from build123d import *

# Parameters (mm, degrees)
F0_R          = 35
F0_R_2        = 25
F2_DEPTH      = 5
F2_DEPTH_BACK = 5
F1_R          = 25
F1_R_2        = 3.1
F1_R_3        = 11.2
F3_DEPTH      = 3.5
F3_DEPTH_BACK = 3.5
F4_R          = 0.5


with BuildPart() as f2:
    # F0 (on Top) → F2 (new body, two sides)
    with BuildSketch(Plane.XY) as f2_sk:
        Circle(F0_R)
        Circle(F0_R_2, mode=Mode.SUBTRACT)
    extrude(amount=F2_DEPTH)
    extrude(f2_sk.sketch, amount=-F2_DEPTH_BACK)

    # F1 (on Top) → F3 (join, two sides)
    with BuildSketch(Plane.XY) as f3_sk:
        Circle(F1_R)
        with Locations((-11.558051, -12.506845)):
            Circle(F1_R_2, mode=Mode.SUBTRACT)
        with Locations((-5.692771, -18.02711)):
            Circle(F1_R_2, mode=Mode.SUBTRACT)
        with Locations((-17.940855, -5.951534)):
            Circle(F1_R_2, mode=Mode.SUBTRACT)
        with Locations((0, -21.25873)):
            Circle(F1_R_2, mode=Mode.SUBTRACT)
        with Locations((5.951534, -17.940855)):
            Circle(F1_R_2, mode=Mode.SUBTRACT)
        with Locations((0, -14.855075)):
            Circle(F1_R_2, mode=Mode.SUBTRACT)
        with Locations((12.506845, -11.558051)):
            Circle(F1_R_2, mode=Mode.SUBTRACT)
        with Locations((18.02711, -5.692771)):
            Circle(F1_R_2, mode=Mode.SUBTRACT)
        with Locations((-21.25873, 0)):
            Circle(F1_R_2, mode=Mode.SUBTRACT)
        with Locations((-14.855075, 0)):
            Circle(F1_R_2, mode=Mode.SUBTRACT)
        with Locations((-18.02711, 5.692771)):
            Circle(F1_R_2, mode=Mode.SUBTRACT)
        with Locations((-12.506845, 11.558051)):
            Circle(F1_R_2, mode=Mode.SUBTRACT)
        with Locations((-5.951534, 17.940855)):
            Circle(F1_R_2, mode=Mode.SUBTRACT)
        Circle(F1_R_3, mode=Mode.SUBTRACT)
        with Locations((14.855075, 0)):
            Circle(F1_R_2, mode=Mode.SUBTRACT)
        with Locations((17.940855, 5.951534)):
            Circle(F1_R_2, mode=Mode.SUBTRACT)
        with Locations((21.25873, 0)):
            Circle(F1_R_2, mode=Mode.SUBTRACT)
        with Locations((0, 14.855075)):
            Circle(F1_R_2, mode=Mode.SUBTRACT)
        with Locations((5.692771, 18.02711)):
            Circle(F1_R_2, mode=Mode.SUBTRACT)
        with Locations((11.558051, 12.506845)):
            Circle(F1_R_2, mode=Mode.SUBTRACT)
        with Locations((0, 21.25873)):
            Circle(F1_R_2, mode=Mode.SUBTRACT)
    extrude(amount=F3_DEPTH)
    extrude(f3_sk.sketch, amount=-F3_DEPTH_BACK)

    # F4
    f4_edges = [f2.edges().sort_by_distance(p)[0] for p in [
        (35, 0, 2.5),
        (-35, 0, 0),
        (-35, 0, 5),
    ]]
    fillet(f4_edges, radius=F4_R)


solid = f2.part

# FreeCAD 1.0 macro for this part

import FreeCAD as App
import Part
import Sketcher

V = App.Vector
Q = App.Units.Quantity


def edges_at(feature, points):
    """Names of the edges that pass closest to the given points."""
    edges = feature.Shape.Edges
    near = lambda p: min(range(len(edges)), key=lambda i: edges[i].distToShape(Part.Vertex(*p))[0])
    return sorted({f"Edge{near(p) + 1}" for p in points})

doc = App.newDocument("Part")
body = doc.addObject("PartDesign::Body", "Body")

# Sketch on XY plane
sketch1 = doc.addObject("Sketcher::SketchObject", "Sketch")
body.addObject(sketch1)
sketch1.AttachmentSupport = (doc.XY_Plane, [""])
sketch1.MapMode = "FlatFace"
sketch1.addGeometry(Part.Circle(V(0, 0, 0), V(0, 0, 1), 35), False)
sketch1.addGeometry(Part.Circle(V(0, 0, 0), V(0, 0, 1), 25), False)
sketch1.addConstraint(Sketcher.Constraint("Coincident", 0, 3, -1, 1))
sketch1.addConstraint(Sketcher.Constraint("Coincident", 1, 3, -1, 1))
sketch1.addConstraint(Sketcher.Constraint("Diameter", 0, Q("70 mm")))
sketch1.addConstraint(Sketcher.Constraint("Diameter", 1, Q("50 mm")))
pad1 = doc.addObject("PartDesign::Pad", "Pad")
body.addObject(pad1)
pad1.Profile = sketch1
pad1.Type = "TwoLengths"
pad1.Length = 5
pad1.Length2 = 5

# Sketch on XY plane
sketch2 = doc.addObject("Sketcher::SketchObject", "Sketch001")
body.addObject(sketch2)
sketch2.AttachmentSupport = (doc.XY_Plane, [""])
sketch2.MapMode = "FlatFace"
sketch2.addGeometry(Part.Circle(V(0, 0, 0), V(0, 0, 1), 25), False)
sketch2.addGeometry(Part.Circle(V(-11.6, -12.5, 0), V(0, 0, 1), 3.1), False)
sketch2.addGeometry(Part.Circle(V(-5.7, -18, 0), V(0, 0, 1), 3.1), False)
sketch2.addGeometry(Part.Circle(V(-17.9, -6, 0), V(0, 0, 1), 3.1), False)
sketch2.addGeometry(Part.Circle(V(0, -21.3, 0), V(0, 0, 1), 3.1), False)
sketch2.addGeometry(Part.Circle(V(6, -17.9, 0), V(0, 0, 1), 3.1), False)
sketch2.addGeometry(Part.Circle(V(0, -14.9, 0), V(0, 0, 1), 3.1), False)
sketch2.addGeometry(Part.Circle(V(12.5, -11.6, 0), V(0, 0, 1), 3.1), False)
sketch2.addGeometry(Part.Circle(V(18, -5.7, 0), V(0, 0, 1), 3.1), False)
sketch2.addGeometry(Part.Circle(V(-21.3, 0, 0), V(0, 0, 1), 3.1), False)
sketch2.addGeometry(Part.Circle(V(-14.9, 0, 0), V(0, 0, 1), 3.1), False)
sketch2.addGeometry(Part.Circle(V(-18, 5.7, 0), V(0, 0, 1), 3.1), False)
sketch2.addGeometry(Part.Circle(V(-12.5, 11.6, 0), V(0, 0, 1), 3.1), False)
sketch2.addGeometry(Part.Circle(V(-6, 17.9, 0), V(0, 0, 1), 3.1), False)
sketch2.addGeometry(Part.Circle(V(0, 0, 0), V(0, 0, 1), 11.2), False)
sketch2.addGeometry(Part.Circle(V(14.9, 0, 0), V(0, 0, 1), 3.1), False)
sketch2.addGeometry(Part.Circle(V(17.9, 6, 0), V(0, 0, 1), 3.1), False)
sketch2.addGeometry(Part.Circle(V(21.3, 0, 0), V(0, 0, 1), 3.1), False)
sketch2.addGeometry(Part.Circle(V(0, 14.9, 0), V(0, 0, 1), 3.1), False)
sketch2.addGeometry(Part.Circle(V(5.7, 18, 0), V(0, 0, 1), 3.1), False)
sketch2.addGeometry(Part.Circle(V(11.6, 12.5, 0), V(0, 0, 1), 3.1), False)
sketch2.addGeometry(Part.Circle(V(0, 21.3, 0), V(0, 0, 1), 3.1), False)
sketch2.addConstraint(Sketcher.Constraint("Coincident", 0, 3, -1, 1))
sketch2.addConstraint(Sketcher.Constraint("Coincident", 14, 3, -1, 1))
sketch2.addConstraint(Sketcher.Constraint("Equal", 1, 2))
sketch2.addConstraint(Sketcher.Constraint("Equal", 2, 3))
sketch2.addConstraint(Sketcher.Constraint("Equal", 3, 4))
sketch2.addConstraint(Sketcher.Constraint("Equal", 4, 5))
sketch2.addConstraint(Sketcher.Constraint("Equal", 5, 6))
sketch2.addConstraint(Sketcher.Constraint("Equal", 6, 7))
sketch2.addConstraint(Sketcher.Constraint("Equal", 7, 8))
sketch2.addConstraint(Sketcher.Constraint("Equal", 8, 9))
sketch2.addConstraint(Sketcher.Constraint("Equal", 9, 10))
sketch2.addConstraint(Sketcher.Constraint("Equal", 10, 11))
sketch2.addConstraint(Sketcher.Constraint("Equal", 11, 12))
sketch2.addConstraint(Sketcher.Constraint("Equal", 12, 13))
sketch2.addConstraint(Sketcher.Constraint("Equal", 13, 15))
sketch2.addConstraint(Sketcher.Constraint("Equal", 15, 16))
sketch2.addConstraint(Sketcher.Constraint("Equal", 16, 17))
sketch2.addConstraint(Sketcher.Constraint("Equal", 17, 18))
sketch2.addConstraint(Sketcher.Constraint("Equal", 18, 19))
sketch2.addConstraint(Sketcher.Constraint("Equal", 19, 20))
sketch2.addConstraint(Sketcher.Constraint("Equal", 20, 21))
sketch2.addConstraint(Sketcher.Constraint("Symmetric", 8, 3, 11, 3, -1, 1))
sketch2.addConstraint(Sketcher.Constraint("Symmetric", 7, 3, 12, 3, -1, 1))
sketch2.addConstraint(Sketcher.Constraint("Symmetric", 5, 3, 13, 3, -1, 1))
sketch2.addConstraint(Sketcher.Constraint("Symmetric", 10, 3, 15, 3, -1, 1))
sketch2.addConstraint(Sketcher.Constraint("Symmetric", 3, 3, 16, 3, -1, 1))
sketch2.addConstraint(Sketcher.Constraint("Symmetric", 9, 3, 17, 3, -1, 1))
sketch2.addConstraint(Sketcher.Constraint("Symmetric", 6, 3, 18, 3, -1, 1))
sketch2.addConstraint(Sketcher.Constraint("Symmetric", 2, 3, 19, 3, -1, 1))
sketch2.addConstraint(Sketcher.Constraint("Symmetric", 1, 3, 20, 3, -1, 1))
sketch2.addConstraint(Sketcher.Constraint("Symmetric", 4, 3, 21, 3, -1, 1))
sketch2.addConstraint(Sketcher.Constraint("PointOnObject", 4, 3, -2))
sketch2.addConstraint(Sketcher.Constraint("PointOnObject", 6, 3, -2))
sketch2.addConstraint(Sketcher.Constraint("PointOnObject", 9, 3, -1))
sketch2.addConstraint(Sketcher.Constraint("PointOnObject", 10, 3, -1))
sketch2.addConstraint(Sketcher.Constraint("Diameter", 0, Q("50 mm")))
sketch2.addConstraint(Sketcher.Constraint("Diameter", 1, Q("6.2 mm")))
sketch2.addConstraint(Sketcher.Constraint("Diameter", 14, Q("22.4 mm")))
sketch2.addConstraint(Sketcher.Constraint("DistanceX", 1, 3, -1, 1, Q("11.558051 mm")))
sketch2.addConstraint(Sketcher.Constraint("DistanceX", 2, 3, -1, 1, Q("5.692771 mm")))
sketch2.addConstraint(Sketcher.Constraint("DistanceY", 2, 3, -1, 1, Q("18.02711 mm")))
sketch2.addConstraint(Sketcher.Constraint("DistanceY", 4, 3, -1, 1, Q("21.25873 mm")))
sketch2.addConstraint(Sketcher.Constraint("DistanceY", 7, 3, -1, 1, Q("11.558051 mm")))
sketch2.addConstraint(Sketcher.Constraint("DistanceX", -1, 1, 8, 3, Q("18.02711 mm")))
sketch2.addConstraint(Sketcher.Constraint("DistanceY", 8, 3, -1, 1, Q("5.692771 mm")))
sketch2.addConstraint(Sketcher.Constraint("DistanceX", 9, 3, -1, 1, Q("21.25873 mm")))
sketch2.addConstraint(Sketcher.Constraint("DistanceY", 1, 3, 3, 3, Q("6.555311 mm")))
sketch2.addConstraint(Sketcher.Constraint("DistanceY", 5, 3, 1, 3, Q("5.43401 mm")))
sketch2.addConstraint(Sketcher.Constraint("DistanceX", 3, 3, 5, 3, Q("23.892389 mm")))
sketch2.addConstraint(Sketcher.Constraint("DistanceY", 5, 3, 6, 3, Q("3.08578 mm")))
sketch2.addConstraint(Sketcher.Constraint("DistanceX", 5, 3, 7, 3, Q("6.555311 mm")))
sketch2.addConstraint(Sketcher.Constraint("DistanceX", 3, 3, 10, 3, Q("3.08578 mm")))
sketch2.addConstraint(Sketcher.Constraint("DistanceX", 10, 3, 12, 3, Q("2.34823 mm")))
sketch2.addConstraint(Sketcher.Constraint("DistanceY", 1, 3, -1, 1, Q("12.506845 mm")))
pad2 = doc.addObject("PartDesign::Pad", "Pad001")
body.addObject(pad2)
pad2.Profile = sketch2
pad2.Type = "TwoLengths"
pad2.Length = 3.5
pad2.Length2 = 3.5
doc.recompute()

fillet = doc.addObject("PartDesign::Fillet", "Fillet")
body.addObject(fillet)
fillet.Base = (pad2, edges_at(pad2, [(35, 0, 0), (-35, 0, -5), (-35, 0, 5)]))
fillet.Radius = 0.5

doc.recompute()
